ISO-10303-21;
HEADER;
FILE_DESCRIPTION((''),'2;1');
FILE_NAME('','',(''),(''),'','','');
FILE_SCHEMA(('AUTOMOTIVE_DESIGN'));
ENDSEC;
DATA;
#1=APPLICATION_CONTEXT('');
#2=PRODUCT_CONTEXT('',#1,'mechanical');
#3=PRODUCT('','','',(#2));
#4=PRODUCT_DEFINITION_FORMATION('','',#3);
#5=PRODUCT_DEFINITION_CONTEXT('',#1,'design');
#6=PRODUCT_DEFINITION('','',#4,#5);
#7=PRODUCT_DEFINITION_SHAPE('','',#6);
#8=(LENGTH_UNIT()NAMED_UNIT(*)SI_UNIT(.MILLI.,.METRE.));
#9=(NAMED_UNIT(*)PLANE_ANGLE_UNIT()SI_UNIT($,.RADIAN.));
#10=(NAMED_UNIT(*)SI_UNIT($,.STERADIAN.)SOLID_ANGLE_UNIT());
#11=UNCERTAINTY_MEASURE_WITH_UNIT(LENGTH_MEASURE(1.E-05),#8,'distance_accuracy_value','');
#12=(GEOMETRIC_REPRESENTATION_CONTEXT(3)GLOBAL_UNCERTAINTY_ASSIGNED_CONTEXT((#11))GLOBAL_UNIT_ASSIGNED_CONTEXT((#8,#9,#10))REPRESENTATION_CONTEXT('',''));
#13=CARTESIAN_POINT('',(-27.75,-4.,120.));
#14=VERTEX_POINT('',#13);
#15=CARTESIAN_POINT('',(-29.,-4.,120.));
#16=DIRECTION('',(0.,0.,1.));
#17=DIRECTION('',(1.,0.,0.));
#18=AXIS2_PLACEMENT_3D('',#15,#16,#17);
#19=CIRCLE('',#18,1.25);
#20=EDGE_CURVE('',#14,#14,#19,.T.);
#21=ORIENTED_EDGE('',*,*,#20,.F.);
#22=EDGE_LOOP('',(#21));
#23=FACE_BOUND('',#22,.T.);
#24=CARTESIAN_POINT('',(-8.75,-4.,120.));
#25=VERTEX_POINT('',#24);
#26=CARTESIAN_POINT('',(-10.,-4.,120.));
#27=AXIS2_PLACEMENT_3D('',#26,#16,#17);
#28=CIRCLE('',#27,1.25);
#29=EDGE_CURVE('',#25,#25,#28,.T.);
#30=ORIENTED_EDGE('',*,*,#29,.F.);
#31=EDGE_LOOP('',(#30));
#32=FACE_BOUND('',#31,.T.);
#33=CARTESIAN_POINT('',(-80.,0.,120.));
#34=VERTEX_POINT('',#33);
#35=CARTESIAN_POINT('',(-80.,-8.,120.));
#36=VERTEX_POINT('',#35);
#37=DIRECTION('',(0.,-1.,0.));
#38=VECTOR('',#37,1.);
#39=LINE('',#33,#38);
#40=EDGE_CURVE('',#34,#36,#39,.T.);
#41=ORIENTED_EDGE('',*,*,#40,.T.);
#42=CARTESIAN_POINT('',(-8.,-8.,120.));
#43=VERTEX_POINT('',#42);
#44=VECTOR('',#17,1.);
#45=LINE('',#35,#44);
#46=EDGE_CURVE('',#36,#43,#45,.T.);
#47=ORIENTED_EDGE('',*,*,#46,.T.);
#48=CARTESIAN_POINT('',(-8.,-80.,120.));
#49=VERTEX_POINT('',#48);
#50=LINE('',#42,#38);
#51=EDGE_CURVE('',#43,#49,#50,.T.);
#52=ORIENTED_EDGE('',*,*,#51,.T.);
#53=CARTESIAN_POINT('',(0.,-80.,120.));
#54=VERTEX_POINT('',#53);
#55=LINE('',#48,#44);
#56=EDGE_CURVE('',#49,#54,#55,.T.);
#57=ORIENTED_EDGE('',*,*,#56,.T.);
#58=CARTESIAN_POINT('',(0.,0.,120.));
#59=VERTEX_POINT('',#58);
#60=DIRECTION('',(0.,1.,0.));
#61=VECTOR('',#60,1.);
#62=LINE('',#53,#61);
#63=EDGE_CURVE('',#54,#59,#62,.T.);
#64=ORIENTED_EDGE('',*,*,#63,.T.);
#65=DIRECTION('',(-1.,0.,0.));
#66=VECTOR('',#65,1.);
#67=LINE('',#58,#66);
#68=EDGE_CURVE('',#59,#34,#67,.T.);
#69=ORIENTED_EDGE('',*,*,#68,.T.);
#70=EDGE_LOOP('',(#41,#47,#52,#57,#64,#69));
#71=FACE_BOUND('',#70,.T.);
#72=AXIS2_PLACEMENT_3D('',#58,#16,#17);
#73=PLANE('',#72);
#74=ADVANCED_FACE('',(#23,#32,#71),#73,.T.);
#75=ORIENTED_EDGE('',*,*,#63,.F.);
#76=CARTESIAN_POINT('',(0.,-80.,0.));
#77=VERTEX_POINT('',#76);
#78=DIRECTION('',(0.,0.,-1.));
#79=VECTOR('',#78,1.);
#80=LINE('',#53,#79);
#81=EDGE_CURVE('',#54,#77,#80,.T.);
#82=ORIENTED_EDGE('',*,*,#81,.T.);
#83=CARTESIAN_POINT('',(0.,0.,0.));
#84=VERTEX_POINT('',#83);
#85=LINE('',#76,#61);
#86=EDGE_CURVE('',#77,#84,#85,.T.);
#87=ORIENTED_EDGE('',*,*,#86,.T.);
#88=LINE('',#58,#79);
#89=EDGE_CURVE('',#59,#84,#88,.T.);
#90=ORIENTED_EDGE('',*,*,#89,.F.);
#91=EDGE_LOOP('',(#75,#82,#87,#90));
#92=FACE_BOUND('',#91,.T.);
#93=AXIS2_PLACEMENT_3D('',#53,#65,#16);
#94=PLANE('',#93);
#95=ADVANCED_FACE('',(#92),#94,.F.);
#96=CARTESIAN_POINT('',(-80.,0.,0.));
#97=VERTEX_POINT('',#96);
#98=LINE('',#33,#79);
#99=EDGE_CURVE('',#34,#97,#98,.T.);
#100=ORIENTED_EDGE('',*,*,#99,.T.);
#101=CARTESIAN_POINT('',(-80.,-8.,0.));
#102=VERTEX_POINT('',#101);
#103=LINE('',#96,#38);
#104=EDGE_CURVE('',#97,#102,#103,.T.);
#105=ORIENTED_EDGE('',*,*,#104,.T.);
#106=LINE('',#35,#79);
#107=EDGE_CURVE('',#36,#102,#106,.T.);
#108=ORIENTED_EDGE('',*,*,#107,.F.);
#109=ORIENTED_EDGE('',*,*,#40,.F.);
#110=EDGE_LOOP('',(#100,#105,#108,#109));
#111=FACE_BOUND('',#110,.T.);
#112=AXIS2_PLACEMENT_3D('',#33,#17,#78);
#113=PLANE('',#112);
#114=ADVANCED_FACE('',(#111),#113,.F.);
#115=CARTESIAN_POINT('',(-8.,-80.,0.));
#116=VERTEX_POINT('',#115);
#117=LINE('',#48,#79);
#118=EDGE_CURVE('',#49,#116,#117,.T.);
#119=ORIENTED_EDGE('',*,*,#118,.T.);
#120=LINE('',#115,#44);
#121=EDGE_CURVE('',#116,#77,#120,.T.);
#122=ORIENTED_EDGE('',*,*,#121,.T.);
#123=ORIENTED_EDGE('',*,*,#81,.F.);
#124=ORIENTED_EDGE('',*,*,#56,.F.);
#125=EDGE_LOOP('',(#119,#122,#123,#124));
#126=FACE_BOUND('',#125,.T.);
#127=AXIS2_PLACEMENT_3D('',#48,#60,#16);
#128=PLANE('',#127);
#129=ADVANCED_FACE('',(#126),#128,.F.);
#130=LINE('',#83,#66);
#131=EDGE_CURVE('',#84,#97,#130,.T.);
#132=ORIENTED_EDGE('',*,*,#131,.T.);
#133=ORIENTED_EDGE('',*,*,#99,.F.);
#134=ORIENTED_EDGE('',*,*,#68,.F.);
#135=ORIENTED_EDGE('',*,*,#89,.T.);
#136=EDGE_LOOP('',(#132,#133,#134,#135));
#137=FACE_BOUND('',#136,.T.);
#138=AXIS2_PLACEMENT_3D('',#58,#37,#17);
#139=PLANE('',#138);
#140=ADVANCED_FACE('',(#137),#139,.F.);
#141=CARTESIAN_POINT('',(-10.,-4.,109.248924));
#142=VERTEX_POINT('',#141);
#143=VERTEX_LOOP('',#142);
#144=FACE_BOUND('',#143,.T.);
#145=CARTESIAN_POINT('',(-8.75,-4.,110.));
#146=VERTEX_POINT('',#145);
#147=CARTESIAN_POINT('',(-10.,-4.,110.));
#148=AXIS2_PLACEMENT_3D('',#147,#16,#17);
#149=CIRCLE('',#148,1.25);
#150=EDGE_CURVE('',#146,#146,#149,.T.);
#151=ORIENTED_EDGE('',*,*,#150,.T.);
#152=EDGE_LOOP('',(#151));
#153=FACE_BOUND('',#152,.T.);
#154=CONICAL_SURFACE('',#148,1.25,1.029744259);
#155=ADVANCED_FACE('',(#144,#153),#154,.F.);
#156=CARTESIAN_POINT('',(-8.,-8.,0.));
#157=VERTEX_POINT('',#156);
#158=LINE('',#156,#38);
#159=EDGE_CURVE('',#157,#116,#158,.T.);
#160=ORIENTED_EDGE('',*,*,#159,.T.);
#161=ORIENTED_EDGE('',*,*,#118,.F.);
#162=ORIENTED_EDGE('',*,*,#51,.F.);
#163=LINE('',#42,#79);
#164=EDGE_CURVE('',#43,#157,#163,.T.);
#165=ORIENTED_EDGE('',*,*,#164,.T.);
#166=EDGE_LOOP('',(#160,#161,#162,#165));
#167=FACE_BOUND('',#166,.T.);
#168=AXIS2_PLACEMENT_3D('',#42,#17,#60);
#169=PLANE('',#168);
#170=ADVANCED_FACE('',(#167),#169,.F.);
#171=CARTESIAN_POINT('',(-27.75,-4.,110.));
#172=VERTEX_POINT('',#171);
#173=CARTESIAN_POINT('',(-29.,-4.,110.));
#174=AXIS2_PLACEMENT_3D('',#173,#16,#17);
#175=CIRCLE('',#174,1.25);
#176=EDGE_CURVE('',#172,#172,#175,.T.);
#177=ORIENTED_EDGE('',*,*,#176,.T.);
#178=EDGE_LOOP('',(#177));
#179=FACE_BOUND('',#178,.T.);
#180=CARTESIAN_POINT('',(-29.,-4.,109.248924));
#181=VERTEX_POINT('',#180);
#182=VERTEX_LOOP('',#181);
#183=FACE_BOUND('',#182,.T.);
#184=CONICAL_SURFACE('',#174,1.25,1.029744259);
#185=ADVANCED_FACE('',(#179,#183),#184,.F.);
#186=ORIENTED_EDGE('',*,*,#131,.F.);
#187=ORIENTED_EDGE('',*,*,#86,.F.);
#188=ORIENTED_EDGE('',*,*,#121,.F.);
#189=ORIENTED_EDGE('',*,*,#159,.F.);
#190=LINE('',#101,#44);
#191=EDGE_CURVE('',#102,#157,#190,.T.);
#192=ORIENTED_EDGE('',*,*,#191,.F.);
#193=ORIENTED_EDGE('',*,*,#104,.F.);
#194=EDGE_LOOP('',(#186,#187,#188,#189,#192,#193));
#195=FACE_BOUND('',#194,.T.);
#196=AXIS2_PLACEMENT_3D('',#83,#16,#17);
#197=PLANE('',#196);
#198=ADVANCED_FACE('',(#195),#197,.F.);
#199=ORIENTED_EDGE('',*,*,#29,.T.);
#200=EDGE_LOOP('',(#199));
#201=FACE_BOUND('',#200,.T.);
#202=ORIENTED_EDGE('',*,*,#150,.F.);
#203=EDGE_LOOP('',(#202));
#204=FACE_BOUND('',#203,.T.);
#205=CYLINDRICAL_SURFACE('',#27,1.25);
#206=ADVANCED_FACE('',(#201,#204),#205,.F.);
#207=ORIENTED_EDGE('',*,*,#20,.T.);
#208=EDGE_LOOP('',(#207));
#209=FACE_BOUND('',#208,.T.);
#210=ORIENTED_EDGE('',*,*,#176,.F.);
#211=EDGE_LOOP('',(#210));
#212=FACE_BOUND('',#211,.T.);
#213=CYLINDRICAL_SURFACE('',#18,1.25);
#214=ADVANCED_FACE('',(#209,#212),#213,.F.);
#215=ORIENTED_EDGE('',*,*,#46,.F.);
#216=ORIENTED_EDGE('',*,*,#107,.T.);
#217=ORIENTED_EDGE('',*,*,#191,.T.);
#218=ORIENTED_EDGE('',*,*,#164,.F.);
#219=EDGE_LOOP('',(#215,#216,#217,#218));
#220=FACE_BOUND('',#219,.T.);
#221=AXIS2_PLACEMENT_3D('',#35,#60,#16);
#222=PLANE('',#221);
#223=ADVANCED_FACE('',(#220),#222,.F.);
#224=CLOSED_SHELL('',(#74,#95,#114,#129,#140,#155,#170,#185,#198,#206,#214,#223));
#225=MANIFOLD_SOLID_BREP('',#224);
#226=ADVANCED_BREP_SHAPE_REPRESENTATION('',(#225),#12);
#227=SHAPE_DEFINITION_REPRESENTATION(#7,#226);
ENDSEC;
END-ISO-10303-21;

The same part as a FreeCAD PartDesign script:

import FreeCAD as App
import Part
import Sketcher
from FreeCAD import Vector

doc = App.newDocument("Part")
body = doc.addObject("PartDesign::Body", "Body")

sketch1 = body.newObject("Sketcher::SketchObject", "Sketch")
sketch1.AttachmentSupport = (doc.getObject("XY_Plane"), [""])
sketch1.MapMode = "FlatFace"
sketch1.addGeometry([
    Part.LineSegment(Vector(0, 0, 0), Vector(-80, 0, 0)),
    Part.LineSegment(Vector(-80, 0, 0), Vector(-80, -8, 0)),
    Part.LineSegment(Vector(-80, -8, 0), Vector(-8, -8, 0)),
    Part.LineSegment(Vector(-8, -8, 0), Vector(-8, -80, 0)),
    Part.LineSegment(Vector(-8, -80, 0), Vector(0, -80, 0)),
    Part.LineSegment(Vector(0, -80, 0), Vector(0, 0, 0)),
], False)
sketch1.addConstraint([
    Sketcher.Constraint("Coincident", 0, 2, 1, 1),
    Sketcher.Constraint("Coincident", 1, 2, 2, 1),
    Sketcher.Constraint("Coincident", 2, 2, 3, 1),
    Sketcher.Constraint("Coincident", 3, 2, 4, 1),
    Sketcher.Constraint("Coincident", 4, 2, 5, 1),
    Sketcher.Constraint("Coincident", 5, 2, 0, 1),
    Sketcher.Constraint("Horizontal", 0),
    Sketcher.Constraint("Vertical", 1),
    Sketcher.Constraint("Horizontal", 2),
    Sketcher.Constraint("Vertical", 3),
    Sketcher.Constraint("Horizontal", 4),
    Sketcher.Constraint("Vertical", 5),
    Sketcher.Constraint("Coincident", 5, 2, -1, 1),
    Sketcher.Constraint("Equal", 4, 1),
    Sketcher.Constraint("Equal", 2, 3),
    Sketcher.Constraint("DistanceX", 0, 2, 0, 1, 80.0),
    Sketcher.Constraint("DistanceX", 2, 1, 2, 2, 72.0),
])
pad1 = body.newObject("PartDesign::Pad", "Pad")
pad1.Profile = sketch1
pad1.Length = 120

sketch2 = body.newObject("Sketcher::SketchObject", "Sketch001")
sketch2.AttachmentSupport = (doc.getObject("XY_Plane"), [""])
sketch2.MapMode = "FlatFace"
sketch2.AttachmentOffset = App.Placement(Vector(0, 0, 120), App.Rotation())
sketch2.addGeometry([
    Part.Circle(Vector(-10, -4, 0), Vector(0, 0, 1), 1.25),
    Part.Circle(Vector(-29, -4, 0), Vector(0, 0, 1), 1.25),
], False)
sketch2.addConstraint([
    Sketcher.Constraint("Equal", 0, 1),
    Sketcher.Constraint("Horizontal", 0, 3, 1, 3),
    Sketcher.Constraint("Diameter", 0, 2.5),
    Sketcher.Constraint("DistanceX", 0, 3, -1, 1, 10.0),
    Sketcher.Constraint("DistanceY", 0, 3, -1, 1, 4.0),
    Sketcher.Constraint("DistanceX", 1, 3, -1, 1, 29.0),
])
doc.recompute()
hole = body.newObject("PartDesign::Hole", "Hole")
hole.Profile = sketch2
hole.ThreadType = "None"
hole.Diameter = 2.5
hole.DepthType = "Dimension"
hole.Depth = 10
hole.DrillPoint = "Angled"
hole.DrillPointAngle = 118

doc.recompute()
